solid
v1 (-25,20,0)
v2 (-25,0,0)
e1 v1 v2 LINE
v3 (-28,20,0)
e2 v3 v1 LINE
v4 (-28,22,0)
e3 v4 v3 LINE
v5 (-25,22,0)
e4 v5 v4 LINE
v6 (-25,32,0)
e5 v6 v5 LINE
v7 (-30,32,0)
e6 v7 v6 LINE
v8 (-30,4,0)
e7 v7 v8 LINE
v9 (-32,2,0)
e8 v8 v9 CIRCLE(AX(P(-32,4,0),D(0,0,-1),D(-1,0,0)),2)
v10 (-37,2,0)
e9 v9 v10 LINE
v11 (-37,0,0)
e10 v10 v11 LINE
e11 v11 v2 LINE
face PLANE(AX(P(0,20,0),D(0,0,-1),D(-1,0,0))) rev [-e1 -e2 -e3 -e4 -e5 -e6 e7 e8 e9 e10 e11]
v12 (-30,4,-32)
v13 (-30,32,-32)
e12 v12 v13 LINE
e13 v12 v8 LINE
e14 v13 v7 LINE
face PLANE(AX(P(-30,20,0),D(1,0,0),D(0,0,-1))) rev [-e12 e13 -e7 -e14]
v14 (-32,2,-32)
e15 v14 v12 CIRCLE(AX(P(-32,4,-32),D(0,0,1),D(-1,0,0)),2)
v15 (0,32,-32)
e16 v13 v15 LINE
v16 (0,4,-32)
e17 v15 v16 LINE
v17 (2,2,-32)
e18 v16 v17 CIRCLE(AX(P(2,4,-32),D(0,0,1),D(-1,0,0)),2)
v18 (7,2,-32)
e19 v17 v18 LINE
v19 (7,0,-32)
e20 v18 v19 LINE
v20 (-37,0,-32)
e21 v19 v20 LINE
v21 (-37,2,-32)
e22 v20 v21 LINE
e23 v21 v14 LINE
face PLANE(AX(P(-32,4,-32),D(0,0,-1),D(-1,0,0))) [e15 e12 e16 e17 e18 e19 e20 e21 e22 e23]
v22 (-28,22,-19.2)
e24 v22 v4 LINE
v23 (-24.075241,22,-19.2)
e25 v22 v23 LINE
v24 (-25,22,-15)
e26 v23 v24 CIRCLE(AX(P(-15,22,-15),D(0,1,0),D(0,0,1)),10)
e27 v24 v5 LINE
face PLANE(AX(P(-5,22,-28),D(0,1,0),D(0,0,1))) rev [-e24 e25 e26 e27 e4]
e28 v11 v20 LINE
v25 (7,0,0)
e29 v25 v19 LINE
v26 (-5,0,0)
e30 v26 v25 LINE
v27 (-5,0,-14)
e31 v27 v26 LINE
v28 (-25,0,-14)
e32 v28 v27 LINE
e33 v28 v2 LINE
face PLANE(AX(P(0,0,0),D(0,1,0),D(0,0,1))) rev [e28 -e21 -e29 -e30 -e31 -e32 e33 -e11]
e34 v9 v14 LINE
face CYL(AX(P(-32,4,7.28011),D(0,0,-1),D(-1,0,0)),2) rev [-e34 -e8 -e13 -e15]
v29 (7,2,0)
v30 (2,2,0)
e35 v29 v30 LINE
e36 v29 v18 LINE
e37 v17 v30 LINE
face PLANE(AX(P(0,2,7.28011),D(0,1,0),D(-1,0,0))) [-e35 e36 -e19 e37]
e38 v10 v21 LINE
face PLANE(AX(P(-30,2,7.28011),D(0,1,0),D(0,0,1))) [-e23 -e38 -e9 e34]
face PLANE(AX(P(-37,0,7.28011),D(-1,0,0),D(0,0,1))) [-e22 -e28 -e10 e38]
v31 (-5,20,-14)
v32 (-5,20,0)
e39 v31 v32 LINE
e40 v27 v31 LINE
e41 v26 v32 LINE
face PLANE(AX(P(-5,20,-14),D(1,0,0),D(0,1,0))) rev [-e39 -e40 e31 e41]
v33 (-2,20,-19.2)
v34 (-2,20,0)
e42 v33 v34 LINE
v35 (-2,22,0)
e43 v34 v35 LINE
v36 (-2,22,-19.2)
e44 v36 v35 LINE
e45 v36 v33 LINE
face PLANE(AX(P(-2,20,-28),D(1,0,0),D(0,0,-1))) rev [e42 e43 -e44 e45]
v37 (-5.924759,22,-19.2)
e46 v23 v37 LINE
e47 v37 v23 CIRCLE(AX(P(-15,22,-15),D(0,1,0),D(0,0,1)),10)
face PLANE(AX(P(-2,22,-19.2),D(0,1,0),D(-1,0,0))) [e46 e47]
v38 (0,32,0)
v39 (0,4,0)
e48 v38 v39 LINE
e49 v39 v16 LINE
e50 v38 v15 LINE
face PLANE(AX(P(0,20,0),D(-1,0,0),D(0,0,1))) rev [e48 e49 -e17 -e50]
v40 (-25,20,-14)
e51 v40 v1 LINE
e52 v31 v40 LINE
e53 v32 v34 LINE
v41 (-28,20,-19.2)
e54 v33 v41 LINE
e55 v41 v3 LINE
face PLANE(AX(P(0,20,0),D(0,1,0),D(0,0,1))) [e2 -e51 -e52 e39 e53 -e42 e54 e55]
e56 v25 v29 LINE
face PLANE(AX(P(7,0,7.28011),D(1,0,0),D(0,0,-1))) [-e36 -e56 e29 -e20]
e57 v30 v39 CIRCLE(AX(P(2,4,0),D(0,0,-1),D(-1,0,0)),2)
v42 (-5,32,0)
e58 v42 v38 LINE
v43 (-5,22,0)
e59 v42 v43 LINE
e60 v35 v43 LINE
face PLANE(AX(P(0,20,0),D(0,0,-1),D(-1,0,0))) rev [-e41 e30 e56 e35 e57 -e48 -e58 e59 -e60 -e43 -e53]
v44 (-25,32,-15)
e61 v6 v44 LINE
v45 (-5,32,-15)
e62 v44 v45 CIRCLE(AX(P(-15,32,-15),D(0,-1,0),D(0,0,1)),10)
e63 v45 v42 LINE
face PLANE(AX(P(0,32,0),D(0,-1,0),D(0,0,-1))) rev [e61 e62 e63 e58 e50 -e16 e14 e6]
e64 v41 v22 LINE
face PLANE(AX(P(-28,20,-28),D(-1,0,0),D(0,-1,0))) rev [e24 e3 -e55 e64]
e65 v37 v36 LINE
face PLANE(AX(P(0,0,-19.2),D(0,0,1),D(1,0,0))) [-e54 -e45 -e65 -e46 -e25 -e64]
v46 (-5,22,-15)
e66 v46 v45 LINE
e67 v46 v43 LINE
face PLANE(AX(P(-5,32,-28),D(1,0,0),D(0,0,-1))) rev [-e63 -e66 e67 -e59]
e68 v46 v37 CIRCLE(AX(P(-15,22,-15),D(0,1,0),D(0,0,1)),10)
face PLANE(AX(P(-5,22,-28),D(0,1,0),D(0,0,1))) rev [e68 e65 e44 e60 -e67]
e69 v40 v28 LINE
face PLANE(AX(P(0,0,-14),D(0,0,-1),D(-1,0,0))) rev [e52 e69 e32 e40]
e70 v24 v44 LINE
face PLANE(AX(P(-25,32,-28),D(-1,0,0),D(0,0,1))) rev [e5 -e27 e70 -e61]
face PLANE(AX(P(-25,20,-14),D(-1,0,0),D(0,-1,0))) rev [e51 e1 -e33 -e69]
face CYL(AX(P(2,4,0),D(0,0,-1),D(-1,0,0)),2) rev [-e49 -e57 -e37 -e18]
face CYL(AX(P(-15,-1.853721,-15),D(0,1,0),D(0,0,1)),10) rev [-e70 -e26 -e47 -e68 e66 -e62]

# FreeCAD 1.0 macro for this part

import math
import FreeCAD as App
import Part
import Sketcher

V = App.Vector


def edges_at(feature, points):
    """Names of the edges that pass closest to the given points."""
    edges = feature.Shape.Edges
    near = lambda p: min(range(len(edges)), key=lambda i: edges[i].distToShape(Part.Vertex(*p))[0])
    return sorted({f"Edge{near(p) + 1}" for p in points})

doc = App.newDocument("Part")
params = doc.addObject("Spreadsheet::Sheet", "Params")
for row, (alias, value) in enumerate([
    ("sketch1_width", "30 mm"),
    ("sketch1_height", "28 mm"),
    ("pad1_length", "20 mm"),
    ("sketch2_width", "5 mm"),
    ("sketch2_height", "28 mm"),
    ("pad2_length", "12 mm"),
    ("sketch3_width", "3 mm"),
    ("sketch3_height", "2 mm"),
    ("sketch4_width", "20 mm"),
    ("pocket2_length", "14 mm"),
    ("sketch5_width", "7 mm"),
    ("sketch5_height", "2 mm"),
    ("pad3_length", "28 mm"),
    ("fillet_radius", "2 mm"),
    ("sketch6_radius", "10 mm"),
    ("sketch6_height", "13 mm"),
    ("pad4_length", "10 mm"),
    ("sketch7_width", "26 mm"),
    ("sketch7_height", "2 mm"),
    ("pad5_length", "8.8 mm"),
    ("sketch8_radius", "2 mm"),
    ("sketch8_width", "30 mm"),
    ("sketch8_width2", "5 mm"),
    ("sketch8_height", "28 mm"),
    ("sketch8_height2", "2 mm"),
    ("pad6_length", "4 mm"),
], start=1):
    params.set(f"A{row}", alias)
    params.set(f"B{row}", "=" + value)
    params.setAlias(f"B{row}", alias)

body = doc.addObject("PartDesign::Body", "Body")

sketch1 = body.newObject("Sketcher::SketchObject", "Sketch")
sketch1.AttachmentSupport = (doc.getObject("XZ_Plane"), [""])
sketch1.MapMode = "FlatFace"
sketch1.addGeometry([
    Part.LineSegment(V(-30, -28, 0), V(-30, 0, 0)),
    Part.LineSegment(V(-30, 0, 0), V(0, 0, 0)),
    Part.LineSegment(V(0, 0, 0), V(0, -28, 0)),
    Part.LineSegment(V(0, -28, 0), V(-30, -28, 0)),
], False)
sketch1.addConstraint([
    Sketcher.Constraint("Coincident", 0, 2, 1, 1),
    Sketcher.Constraint("Coincident", 1, 2, 2, 1),
    Sketcher.Constraint("Coincident", 2, 2, 3, 1),
    Sketcher.Constraint("Coincident", 3, 2, 0, 1),
    Sketcher.Constraint("Vertical", 0),
    Sketcher.Constraint("Horizontal", 1),
    Sketcher.Constraint("Vertical", 2),
    Sketcher.Constraint("Horizontal", 3),
    Sketcher.Constraint("Coincident", 1, 2, -1, 1),
    Sketcher.Constraint("DistanceX", 1, 1, 1, 2, 30.0),
    Sketcher.Constraint("DistanceY", 0, 1, 0, 2, 28.0),
])
sketch1.setExpression("Constraints[9]", "Params.sketch1_width")
sketch1.setExpression("Constraints[10]", "Params.sketch1_height")
pad1 = body.newObject("PartDesign::Pad", "Pad")
pad1.Profile = sketch1
pad1.setExpression("Length", "Params.pad1_length")
pad1.Reversed = True

sketch2 = body.newObject("Sketcher::SketchObject", "Sketch001")
sketch2.AttachmentSupport = (doc.getObject("XZ_Plane"), [""])
sketch2.MapMode = "FlatFace"
sketch2.AttachmentOffset = App.Placement(V(0, 0, -20), App.Rotation())
sketch2.addGeometry([
    Part.LineSegment(V(-30, -28, 0), V(-30, 0, 0)),
    Part.LineSegment(V(-30, 0, 0), V(-25, 0, 0)),
    Part.LineSegment(V(-25, 0, 0), V(-25, -28, 0)),
    Part.LineSegment(V(-25, -28, 0), V(-30, -28, 0)),
    Part.LineSegment(V(-5, -28, 0), V(-5, 0, 0)),
    Part.LineSegment(V(-5, 0, 0), V(0, 0, 0)),
    Part.LineSegment(V(0, 0, 0), V(0, -28, 0)),
    Part.LineSegment(V(0, -28, 0), V(-5, -28, 0)),
], False)
sketch2.addConstraint([
    Sketcher.Constraint("Coincident", 0, 2, 1, 1),
    Sketcher.Constraint("Coincident", 1, 2, 2, 1),
    Sketcher.Constraint("Coincident", 2, 2, 3, 1),
    Sketcher.Constraint("Coincident", 3, 2, 0, 1),
    Sketcher.Constraint("Coincident", 4, 2, 5, 1),
    Sketcher.Constraint("Coincident", 5, 2, 6, 1),
    Sketcher.Constraint("Coincident", 6, 2, 7, 1),
    Sketcher.Constraint("Coincident", 7, 2, 4, 1),
    Sketcher.Constraint("Vertical", 0),
    Sketcher.Constraint("Horizontal", 1),
    Sketcher.Constraint("Vertical", 2),
    Sketcher.Constraint("Horizontal", 3),
    Sketcher.Constraint("Vertical", 4),
    Sketcher.Constraint("Horizontal", 5),
    Sketcher.Constraint("Vertical", 6),
    Sketcher.Constraint("Horizontal", 7),
    Sketcher.Constraint("Coincident", 5, 2, -1, 1),
    Sketcher.Constraint("PointOnObject", 0, 2, -1),
    Sketcher.Constraint("Horizontal", 3, 2, 6, 2),
    Sketcher.Constraint("Equal", 3, 5),
    Sketcher.Constraint("DistanceX", 1, 1, 1, 2, 5.0),
    Sketcher.Constraint("DistanceY", 0, 1, 0, 2, 28.0),
    Sketcher.Constraint("DistanceX", 0, 2, -1, 1, 30.0),
])
sketch2.setExpression("Constraints[20]", "Params.sketch2_width")
sketch2.setExpression("Constraints[21]", "Params.sketch2_height")
pad2 = body.newObject("PartDesign::Pad", "Pad001")
pad2.Profile = sketch2
pad2.setExpression("Length", "Params.pad2_length")
pad2.Reversed = True

sketch3 = body.newObject("Sketcher::SketchObject", "Sketch002")
sketch3.AttachmentSupport = (doc.getObject("XY_Plane"), [""])
sketch3.MapMode = "FlatFace"
sketch3.addGeometry([
    Part.LineSegment(V(-5, 22, 0), V(-5, 20, 0)),
    Part.LineSegment(V(-5, 20, 0), V(-2, 20, 0)),
    Part.LineSegment(V(-2, 20, 0), V(-2, 22, 0)),
    Part.LineSegment(V(-2, 22, 0), V(-5, 22, 0)),
    Part.LineSegment(V(-28, 22, 0), V(-28, 20, 0)),
    Part.LineSegment(V(-28, 20, 0), V(-25, 20, 0)),
    Part.LineSegment(V(-25, 20, 0), V(-25, 22, 0)),
    Part.LineSegment(V(-25, 22, 0), V(-28, 22, 0)),
], False)
sketch3.addConstraint([
    Sketcher.Constraint("Coincident", 0, 2, 1, 1),
    Sketcher.Constraint("Coincident", 1, 2, 2, 1),
    Sketcher.Constraint("Coincident", 2, 2, 3, 1),
    Sketcher.Constraint("Coincident", 3, 2, 0, 1),
    Sketcher.Constraint("Coincident", 4, 2, 5, 1),
    Sketcher.Constraint("Coincident", 5, 2, 6, 1),
    Sketcher.Constraint("Coincident", 6, 2, 7, 1),
    Sketcher.Constraint("Coincident", 7, 2, 4, 1),
    Sketcher.Constraint("Vertical", 0),
    Sketcher.Constraint("Horizontal", 1),
    Sketcher.Constraint("Vertical", 2),
    Sketcher.Constraint("Horizontal", 3),
    Sketcher.Constraint("Vertical", 4),
    Sketcher.Constraint("Horizontal", 5),
    Sketcher.Constraint("Vertical", 6),
    Sketcher.Constraint("Horizontal", 7),
    Sketcher.Constraint("Horizontal", 1, 2, 4, 2),
    Sketcher.Constraint("Horizontal", 3, 2, 6, 2),
    Sketcher.Constraint("Equal", 3, 5),
    Sketcher.Constraint("DistanceX", 1, 1, 1, 2, 3.0),
    Sketcher.Constraint("DistanceY", 0, 2, 0, 1, 2.0),
    Sketcher.Constraint("DistanceX", 0, 2, -1, 1, 5.0),
    Sketcher.Constraint("DistanceY", -1, 1, 0, 2, 20.0),
    Sketcher.Constraint("DistanceX", 4, 2, -1, 1, 28.0),
])
sketch3.setExpression("Constraints[19]", "Params.sketch3_width")
sketch3.setExpression("Constraints[20]", "Params.sketch3_height")
pocket1 = body.newObject("PartDesign::Pocket", "Pocket")
pocket1.Profile = sketch3
pocket1.Type = "ThroughAll"

sketch4 = body.newObject("Sketcher::SketchObject", "Sketch003")
sketch4.AttachmentSupport = (doc.getObject("XY_Plane"), [""])
sketch4.MapMode = "FlatFace"
sketch4.addGeometry([
    Part.LineSegment(V(-25, 20, 0), V(-25, 0, 0)),
    Part.LineSegment(V(-25, 0, 0), V(-5, 0, 0)),
    Part.LineSegment(V(-5, 0, 0), V(-5, 20, 0)),
    Part.LineSegment(V(-5, 20, 0), V(-25, 20, 0)),
], False)
sketch4.addConstraint([
    Sketcher.Constraint("Coincident", 0, 2, 1, 1),
    Sketcher.Constraint("Coincident", 1, 2, 2, 1),
    Sketcher.Constraint("Coincident", 2, 2, 3, 1),
    Sketcher.Constraint("Coincident", 3, 2, 0, 1),
    Sketcher.Constraint("Vertical", 0),
    Sketcher.Constraint("Horizontal", 1),
    Sketcher.Constraint("Vertical", 2),
    Sketcher.Constraint("Horizontal", 3),
    Sketcher.Constraint("PointOnObject", 0, 2, -1),
    Sketcher.Constraint("Equal", 3, 0),
    Sketcher.Constraint("DistanceX", 1, 1, 1, 2, 20.0),
    Sketcher.Constraint("DistanceX", 0, 2, -1, 1, 25.0),
])
sketch4.setExpression("Constraints[10]", "Params.sketch4_width")
pocket2 = body.newObject("PartDesign::Pocket", "Pocket001")
pocket2.Profile = sketch4
pocket2.setExpression("Length", "Params.pocket2_length")

sketch5 = body.newObject("Sketcher::SketchObject", "Sketch004")
sketch5.AttachmentSupport = (doc.getObject("XY_Plane"), [""])
sketch5.MapMode = "FlatFace"
sketch5.AttachmentOffset = App.Placement(V(0, 0, -28), App.Rotation())
sketch5.addGeometry([
    Part.LineSegment(V(-30, 2, 0), V(-30, 0, 0)),
    Part.LineSegment(V(-30, 0, 0), V(-37, 0, 0)),
    Part.LineSegment(V(-37, 0, 0), V(-37, 2, 0)),
    Part.LineSegment(V(-37, 2, 0), V(-30, 2, 0)),
    Part.LineSegment(V(7, 2, 0), V(7, 0, 0)),
    Part.LineSegment(V(7, 0, 0), V(0, 0, 0)),
    Part.LineSegment(V(0, 0, 0), V(0, 2, 0)),
    Part.LineSegment(V(0, 2, 0), V(7, 2, 0)),
], False)
sketch5.addConstraint([
    Sketcher.Constraint("Coincident", 0, 2, 1, 1),
    Sketcher.Constraint("Coincident", 1, 2, 2, 1),
    Sketcher.Constraint("Coincident", 2, 2, 3, 1),
    Sketcher.Constraint("Coincident", 3, 2, 0, 1),
    Sketcher.Constraint("Coincident", 4, 2, 5, 1),
    Sketcher.Constraint("Coincident", 5, 2, 6, 1),
    Sketcher.Constraint("Coincident", 6, 2, 7, 1),
    Sketcher.Constraint("Coincident", 7, 2, 4, 1),
    Sketcher.Constraint("Vertical", 0),
    Sketcher.Constraint("Horizontal", 1),
    Sketcher.Constraint("Vertical", 2),
    Sketcher.Constraint("Horizontal", 3),
    Sketcher.Constraint("Vertical", 4),
    Sketcher.Constraint("Horizontal", 5),
    Sketcher.Constraint("Vertical", 6),
    Sketcher.Constraint("Horizontal", 7),
    Sketcher.Constraint("Coincident", 5, 2, -1, 1),
    Sketcher.Constraint("PointOnObject", 0, 2, -1),
    Sketcher.Constraint("Horizontal", 3, 2, 6, 2),
    Sketcher.Constraint("Equal", 3, 5),
    Sketcher.Constraint("DistanceX", 1, 2, 1, 1, 7.0),
    Sketcher.Constraint("DistanceY", 0, 2, 0, 1, 2.0),
    Sketcher.Constraint("DistanceX", 0, 2, -1, 1, 30.0),
])
sketch5.setExpression("Constraints[20]", "Params.sketch5_width")
sketch5.setExpression("Constraints[21]", "Params.sketch5_height")
pad3 = body.newObject("PartDesign::Pad", "Pad002")
pad3.Profile = sketch5
pad3.setExpression("Length", "Params.pad3_length")
doc.recompute()

fillet = body.newObject("PartDesign::Fillet", "Fillet")
fillet.Base = (pad3, edges_at(pad3, [(-30, 2, -14), (0, 2, -14)]))
fillet.setExpression("Radius", "Params.fillet_radius")

sketch6 = body.newObject("Sketcher::SketchObject", "Sketch005")
sketch6.AttachmentSupport = (doc.getObject("XZ_Plane"), [""])
sketch6.MapMode = "FlatFace"
sketch6.AttachmentOffset = App.Placement(V(0, 0, -32), App.Rotation())
sketch6.addGeometry([
    Part.LineSegment(V(-25, -28, 0), V(-25, -15, 0)),
    Part.ArcOfCircle(Part.Circle(V(-15, -15, 0), V(0, 0, 1), 10), math.radians(180), math.radians(360)),
    Part.LineSegment(V(-5, -15, 0), V(-5, -28, 0)),
    Part.LineSegment(V(-5, -28, 0), V(-25, -28, 0)),
], False)
sketch6.addConstraint([
    Sketcher.Constraint("Tangent", 0, 2, 1, 1),
    Sketcher.Constraint("Tangent", 1, 2, 2, 1),
    Sketcher.Constraint("Coincident", 2, 2, 3, 1),
    Sketcher.Constraint("Coincident", 3, 2, 0, 1),
    Sketcher.Constraint("Vertical", 0),
    Sketcher.Constraint("Vertical", 2),
    Sketcher.Constraint("Horizontal", 3),
    Sketcher.Constraint("Radius", 1, 10.0),
    Sketcher.Constraint("DistanceY", 0, 1, 0, 2, 13.0),
    Sketcher.Constraint("DistanceX", 1, 3, -1, 1, 15.0),
    Sketcher.Constraint("DistanceY", 1, 3, -1, 1, 15.0),
])
sketch6.setExpression("Constraints[7]", "Params.sketch6_radius")
sketch6.setExpression("Constraints[8]", "Params.sketch6_height")
pad4 = body.newObject("PartDesign::Pad", "Pad003")
pad4.Profile = sketch6
pad4.setExpression("Length", "Params.pad4_length")

sketch7 = body.newObject("Sketcher::SketchObject", "Sketch006")
sketch7.AttachmentSupport = (doc.getObject("XY_Plane"), [""])
sketch7.MapMode = "FlatFace"
sketch7.AttachmentOffset = App.Placement(V(0, 0, -28), App.Rotation())
sketch7.addGeometry([
    Part.LineSegment(V(-2, 22, 0), V(-2, 20, 0)),
    Part.LineSegment(V(-2, 20, 0), V(-28, 20, 0)),
    Part.LineSegment(V(-28, 20, 0), V(-28, 22, 0)),
    Part.LineSegment(V(-28, 22, 0), V(-2, 22, 0)),
], False)
sketch7.addConstraint([
    Sketcher.Constraint("Coincident", 0, 2, 1, 1),
    Sketcher.Constraint("Coincident", 1, 2, 2, 1),
    Sketcher.Constraint("Coincident", 2, 2, 3, 1),
    Sketcher.Constraint("Coincident", 3, 2, 0, 1),
    Sketcher.Constraint("Vertical", 0),
    Sketcher.Constraint("Horizontal", 1),
    Sketcher.Constraint("Vertical", 2),
    Sketcher.Constraint("Horizontal", 3),
    Sketcher.Constraint("DistanceX", 1, 2, 1, 1, 26.0),
    Sketcher.Constraint("DistanceY", 0, 2, 0, 1, 2.0),
    Sketcher.Constraint("DistanceX", 0, 2, -1, 1, 2.0),
    Sketcher.Constraint("DistanceY", -1, 1, 0, 2, 20.0),
])
sketch7.setExpression("Constraints[8]", "Params.sketch7_width")
sketch7.setExpression("Constraints[9]", "Params.sketch7_height")
pad5 = body.newObject("PartDesign::Pad", "Pad004")
pad5.Profile = sketch7
pad5.setExpression("Length", "Params.pad5_length")

sketch8 = body.newObject("Sketcher::SketchObject", "Sketch007")
sketch8.AttachmentSupport = (doc.getObject("XY_Plane"), [""])
sketch8.MapMode = "FlatFace"
sketch8.AttachmentOffset = App.Placement(V(0, 0, -28), App.Rotation())
sketch8.addGeometry([
    Part.LineSegment(V(-30, 4, 0), V(-30, 32, 0)),
    Part.LineSegment(V(-30, 32, 0), V(0, 32, 0)),
    Part.LineSegment(V(0, 32, 0), V(0, 4, 0)),
    Part.ArcOfCircle(Part.Circle(V(2, 4, 0), V(0, 0, 1), 2), math.radians(-180), math.radians(-90)),
    Part.LineSegment(V(2, 2, 0), V(7, 2, 0)),
    Part.LineSegment(V(7, 2, 0), V(7, 0, 0)),
    Part.LineSegment(V(7, 0, 0), V(-37, 0, 0)),
    Part.LineSegment(V(-37, 0, 0), V(-37, 2, 0)),
    Part.LineSegment(V(-37, 2, 0), V(-32, 2, 0)),
    Part.ArcOfCircle(Part.Circle(V(-32, 4, 0), V(0, 0, 1), 2), math.radians(-90), math.radians(0)),
], False)
sketch8.addConstraint([
    Sketcher.Constraint("Coincident", 0, 2, 1, 1),
    Sketcher.Constraint("Coincident", 1, 2, 2, 1),
    Sketcher.Constraint("Tangent", 2, 2, 3, 1),
    Sketcher.Constraint("Tangent", 3, 2, 4, 1),
    Sketcher.Constraint("Coincident", 4, 2, 5, 1),
    Sketcher.Constraint("Coincident", 5, 2, 6, 1),
    Sketcher.Constraint("Coincident", 6, 2, 7, 1),
    Sketcher.Constraint("Coincident", 7, 2, 8, 1),
    Sketcher.Constraint("Tangent", 8, 2, 9, 1),
    Sketcher.Constraint("Tangent", 9, 2, 0, 1),
    Sketcher.Constraint("Vertical", 0),
    Sketcher.Constraint("Horizontal", 1),
    Sketcher.Constraint("Vertical", 2),
    Sketcher.Constraint("Horizontal", 4),
    Sketcher.Constraint("Vertical", 5),
    Sketcher.Constraint("Horizontal", 6),
    Sketcher.Constraint("Vertical", 7),
    Sketcher.Constraint("Horizontal", 8),
    Sketcher.Constraint("Equal", 3, 9),
    Sketcher.Constraint("PointOnObject", 1, 2, -2),
    Sketcher.Constraint("PointOnObject", 5, 2, -1),
    Sketcher.Constraint("Horizontal", 3, 3, 9, 3),
    Sketcher.Constraint("Equal", 4, 8),
    Sketcher.Constraint("Radius", 3, 2.0),
    Sketcher.Constraint("DistanceX", 1, 1, 1, 2, 30.0),
    Sketcher.Constraint("DistanceX", 4, 1, 4, 2, 5.0),
    Sketcher.Constraint("DistanceY", 0, 1, 0, 2, 28.0),
    Sketcher.Constraint("DistanceY", 5, 2, 5, 1, 2.0),
])
sketch8.setExpression("Constraints[23]", "Params.sketch8_radius")
sketch8.setExpression("Constraints[24]", "Params.sketch8_width")
sketch8.setExpression("Constraints[25]", "Params.sketch8_width2")
sketch8.setExpression("Constraints[26]", "Params.sketch8_height")
sketch8.setExpression("Constraints[27]", "Params.sketch8_height2")
pad6 = body.newObject("PartDesign::Pad", "Pad005")
pad6.Profile = sketch8
pad6.setExpression("Length", "Params.pad6_length")
pad6.Reversed = True

doc.recompute()
